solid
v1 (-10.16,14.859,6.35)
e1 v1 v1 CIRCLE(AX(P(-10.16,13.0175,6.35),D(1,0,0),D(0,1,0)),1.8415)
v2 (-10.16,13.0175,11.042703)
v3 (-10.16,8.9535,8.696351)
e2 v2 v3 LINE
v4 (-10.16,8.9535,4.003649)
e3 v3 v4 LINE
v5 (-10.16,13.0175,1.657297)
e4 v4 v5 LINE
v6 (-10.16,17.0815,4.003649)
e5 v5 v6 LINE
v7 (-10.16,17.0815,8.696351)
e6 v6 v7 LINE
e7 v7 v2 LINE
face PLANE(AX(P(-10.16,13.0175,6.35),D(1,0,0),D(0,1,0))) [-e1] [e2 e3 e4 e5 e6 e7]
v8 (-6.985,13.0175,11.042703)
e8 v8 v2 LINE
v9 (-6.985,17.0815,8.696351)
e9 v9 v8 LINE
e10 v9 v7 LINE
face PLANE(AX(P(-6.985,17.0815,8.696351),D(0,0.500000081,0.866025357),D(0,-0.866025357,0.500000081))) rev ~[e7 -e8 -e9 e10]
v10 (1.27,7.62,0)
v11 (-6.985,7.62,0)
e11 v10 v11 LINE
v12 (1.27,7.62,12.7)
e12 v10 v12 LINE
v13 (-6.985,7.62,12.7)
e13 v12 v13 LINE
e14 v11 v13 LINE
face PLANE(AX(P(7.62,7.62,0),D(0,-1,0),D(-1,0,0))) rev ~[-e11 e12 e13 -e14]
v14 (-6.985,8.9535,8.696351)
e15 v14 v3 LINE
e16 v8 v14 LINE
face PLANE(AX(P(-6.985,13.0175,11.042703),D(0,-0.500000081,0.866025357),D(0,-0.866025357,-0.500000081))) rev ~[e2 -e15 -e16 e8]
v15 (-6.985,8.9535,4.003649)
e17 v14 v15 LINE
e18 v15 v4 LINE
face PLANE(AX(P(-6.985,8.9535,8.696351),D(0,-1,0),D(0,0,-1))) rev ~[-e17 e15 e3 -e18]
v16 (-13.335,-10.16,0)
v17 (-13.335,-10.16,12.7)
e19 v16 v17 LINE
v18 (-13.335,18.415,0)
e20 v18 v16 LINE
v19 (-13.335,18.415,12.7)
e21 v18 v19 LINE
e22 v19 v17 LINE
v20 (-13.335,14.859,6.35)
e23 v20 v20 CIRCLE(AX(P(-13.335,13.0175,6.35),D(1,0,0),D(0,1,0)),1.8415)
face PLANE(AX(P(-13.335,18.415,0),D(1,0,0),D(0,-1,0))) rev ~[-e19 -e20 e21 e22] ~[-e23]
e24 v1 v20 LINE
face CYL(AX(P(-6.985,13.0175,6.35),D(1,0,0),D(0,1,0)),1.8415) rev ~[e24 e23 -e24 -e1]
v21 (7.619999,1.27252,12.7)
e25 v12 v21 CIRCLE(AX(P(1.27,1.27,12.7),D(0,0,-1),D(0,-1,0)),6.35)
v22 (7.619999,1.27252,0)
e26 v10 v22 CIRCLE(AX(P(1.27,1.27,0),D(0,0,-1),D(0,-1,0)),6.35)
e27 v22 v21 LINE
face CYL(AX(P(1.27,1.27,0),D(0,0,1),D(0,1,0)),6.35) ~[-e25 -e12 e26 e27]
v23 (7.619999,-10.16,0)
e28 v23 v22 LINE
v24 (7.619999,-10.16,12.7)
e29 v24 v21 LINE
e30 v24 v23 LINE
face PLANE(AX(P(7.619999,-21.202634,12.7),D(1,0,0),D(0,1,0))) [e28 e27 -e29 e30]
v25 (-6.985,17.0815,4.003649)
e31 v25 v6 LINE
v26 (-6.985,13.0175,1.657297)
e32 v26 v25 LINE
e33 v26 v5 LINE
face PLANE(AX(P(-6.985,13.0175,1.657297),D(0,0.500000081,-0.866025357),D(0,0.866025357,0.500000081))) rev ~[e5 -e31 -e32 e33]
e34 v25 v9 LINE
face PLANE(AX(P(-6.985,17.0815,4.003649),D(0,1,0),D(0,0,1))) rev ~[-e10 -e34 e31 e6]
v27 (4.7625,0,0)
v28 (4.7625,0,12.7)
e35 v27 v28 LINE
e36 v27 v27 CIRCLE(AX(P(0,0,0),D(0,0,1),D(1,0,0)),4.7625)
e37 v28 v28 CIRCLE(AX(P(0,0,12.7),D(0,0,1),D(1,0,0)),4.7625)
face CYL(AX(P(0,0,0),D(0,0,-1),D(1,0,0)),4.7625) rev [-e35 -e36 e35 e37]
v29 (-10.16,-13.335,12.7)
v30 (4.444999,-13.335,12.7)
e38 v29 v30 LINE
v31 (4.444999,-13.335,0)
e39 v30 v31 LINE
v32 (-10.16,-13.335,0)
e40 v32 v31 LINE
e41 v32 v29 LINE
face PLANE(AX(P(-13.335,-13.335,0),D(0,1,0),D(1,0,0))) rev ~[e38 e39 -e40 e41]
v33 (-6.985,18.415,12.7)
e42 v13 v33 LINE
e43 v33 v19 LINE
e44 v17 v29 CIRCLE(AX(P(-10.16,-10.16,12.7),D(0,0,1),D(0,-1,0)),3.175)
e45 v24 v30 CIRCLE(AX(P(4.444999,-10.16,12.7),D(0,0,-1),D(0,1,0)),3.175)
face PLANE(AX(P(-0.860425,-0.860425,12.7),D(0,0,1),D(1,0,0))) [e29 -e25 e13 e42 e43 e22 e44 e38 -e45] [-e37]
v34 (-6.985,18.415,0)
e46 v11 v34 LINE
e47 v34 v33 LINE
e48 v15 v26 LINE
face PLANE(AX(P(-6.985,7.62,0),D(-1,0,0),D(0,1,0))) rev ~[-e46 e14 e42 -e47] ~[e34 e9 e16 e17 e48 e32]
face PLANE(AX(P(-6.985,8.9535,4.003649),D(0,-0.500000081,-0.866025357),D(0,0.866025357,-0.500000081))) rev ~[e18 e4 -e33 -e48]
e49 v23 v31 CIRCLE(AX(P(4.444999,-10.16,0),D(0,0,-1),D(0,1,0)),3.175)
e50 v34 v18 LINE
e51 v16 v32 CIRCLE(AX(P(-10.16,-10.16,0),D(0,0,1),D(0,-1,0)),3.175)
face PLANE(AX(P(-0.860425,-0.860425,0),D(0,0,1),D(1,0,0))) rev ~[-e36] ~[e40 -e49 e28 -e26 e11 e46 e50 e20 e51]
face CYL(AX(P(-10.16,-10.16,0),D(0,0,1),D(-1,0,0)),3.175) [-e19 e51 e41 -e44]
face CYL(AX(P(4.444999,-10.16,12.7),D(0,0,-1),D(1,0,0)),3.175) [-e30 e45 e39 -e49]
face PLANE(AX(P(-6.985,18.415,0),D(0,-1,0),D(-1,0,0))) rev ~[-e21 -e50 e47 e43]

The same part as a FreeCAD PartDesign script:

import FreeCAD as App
import Part
import Sketcher

V = App.Vector
Q = App.Units.Quantity


def edges_at(feature, points):
    """Names of the edges that pass closest to the given points."""
    edges = feature.Shape.Edges
    near = lambda p: min(range(len(edges)), key=lambda i: edges[i].distToShape(Part.Vertex(*p))[0])
    return sorted({f"Edge{near(p) + 1}" for p in points})


def add_polygon(sketch, points):
    """Adds a closed chain of lines whose ends are joined by coincident constraints."""
    first, n = sketch.GeometryCount, len(points)
    for a, b in zip(points, points[1:] + points[:1]):
        sketch.addGeometry(Part.LineSegment(App.Vector(*a, 0), App.Vector(*b, 0)), False)
    for i in range(n):
        sketch.addConstraint(Sketcher.Constraint("Coincident", first + i, 2, first + (i + 1) % n, 1))

doc = App.newDocument("Part")
body = doc.addObject("PartDesign::Body", "Body")

sketch1 = doc.addObject("Sketcher::SketchObject", "Sketch")
body.addObject(sketch1)
sketch1.AttachmentSupport = (doc.XY_Plane, [""])
sketch1.MapMode = "FlatFace"
add_polygon(sketch1, [(-13.3, 18.4), (-13.3, -13.3), (18.4, -13.3), (18.4, -7), (7.6, -7), (7.6, 7.6), (-7, 7.6), (-7, 18.4)])
sketch1.addGeometry(Part.Circle(V(0, 0, 0), V(0, 0, 1), 4.8), False)
sketch1.addConstraint([
    Sketcher.Constraint("Vertical", 0),
    Sketcher.Constraint("Horizontal", 1),
    Sketcher.Constraint("Vertical", 2),
    Sketcher.Constraint("Horizontal", 3),
    Sketcher.Constraint("Vertical", 4),
    Sketcher.Constraint("Horizontal", 5),
    Sketcher.Constraint("Vertical", 6),
    Sketcher.Constraint("Horizontal", 7),
    Sketcher.Constraint("Coincident", 8, 3, -1, 1),
    Sketcher.Constraint("Equal", 1, 0),
    Sketcher.Constraint("Equal", 7, 2),
    Sketcher.Constraint("Equal", 5, 4),
    Sketcher.Constraint("Diameter", 8, Q("0.375 in")),
    Sketcher.Constraint("DistanceX", 5, 2, 2, 2, Q("1 in")),
    Sketcher.Constraint("DistanceX", 1, 1, 1, 2, Q("1.25 in")),
    Sketcher.Constraint("DistanceX", -1, 1, 3, 2, Q("0.3 in")),
    Sketcher.Constraint("DistanceY", -1, 1, 4, 2, Q("0.3 in")),
    Sketcher.Constraint("DistanceX", 3, 2, 3, 1, Q("0.425 in")),
])
pad1 = doc.addObject("PartDesign::Pad", "Pad")
body.addObject(pad1)
pad1.Profile = sketch1
pad1.Length = Q("0.5 in")
doc.recompute()

fillet = doc.addObject("PartDesign::Fillet", "Fillet")
body.addObject(fillet)
fillet.Base = (pad1, edges_at(pad1, [(7.62, 7.62, 6.35)]))
fillet.Radius = Q("0.25 in")
doc.recompute()

fillet2 = doc.addObject("PartDesign::Fillet", "Fillet001")
body.addObject(fillet2)
fillet2.Base = (fillet, edges_at(fillet, [(-13.335, -13.335, 6.35)]))
fillet2.Radius = Q("0.125 in")

sketch2 = doc.addObject("Sketcher::SketchObject", "Sketch001")
body.addObject(sketch2)
sketch2.AttachmentSupport = (doc.XZ_Plane, [""])
sketch2.MapMode = "FlatFace"
sketch2.AttachmentOffset = App.Placement(V(0, 0, 0.275 * 25.4), App.Rotation())
sketch2.addGeometry(Part.Circle(V(13, 6.3, 0), V(0, 0, 1), 1.8), False)
sketch2.addConstraint([
    Sketcher.Constraint("Diameter", 0, Q("0.145 in")),
    Sketcher.Constraint("DistanceY", -1, 1, 0, 3, Q("0.25 in")),
    Sketcher.Constraint("DistanceX", -1, 1, 0, 3, Q("0.5125 in")),
])
pocket1 = doc.addObject("PartDesign::Pocket", "Pocket")
body.addObject(pocket1)
pocket1.Profile = sketch2
pocket1.Length = Q("1 in")
pocket1.Reversed = True

sketch3 = doc.addObject("Sketcher::SketchObject", "Sketch002")
body.addObject(sketch3)
sketch3.AttachmentSupport = (doc.XZ_Plane, [""])
sketch3.MapMode = "FlatFace"
sketch3.AttachmentOffset = App.Placement(V(0, 0, 0.275 * 25.4), App.Rotation())
add_polygon(sketch3, [(17.1, 4), (13, 1.7), (9, 4), (9, 8.7), (13, 11), (17.1, 8.7)])
sketch3.addConstraint([
    Sketcher.Constraint("Vertical", 2),
    Sketcher.Constraint("Vertical", 5),
    Sketcher.Constraint("Parallel", 0, 3),
    Sketcher.Constraint("Parallel", 1, 4),
    Sketcher.Constraint("Horizontal", 2, 2, 4, 2),
    Sketcher.Constraint("Horizontal", 1, 2, 5, 2),
    Sketcher.Constraint("Vertical", 0, 2, 3, 2),
    Sketcher.Constraint("Angle", 0, Q("-149.999995 deg")),
    Sketcher.Constraint("DistanceX", 1, 2, 0, 2, Q("0.16 in")),
    Sketcher.Constraint("DistanceY", 2, 1, 2, 2, Q("4.692702 mm")),
    Sketcher.Constraint("DistanceX", -1, 1, 0, 2, Q("0.5125 in")),
    Sketcher.Constraint("DistanceY", -1, 1, 1, 2, Q("4.003649 mm")),
])
pocket2 = doc.addObject("PartDesign::Pocket", "Pocket001")
body.addObject(pocket2)
pocket2.Profile = sketch3
pocket2.Length = Q("0.125 in")
pocket2.Reversed = True

sketch4 = doc.addObject("Sketcher::SketchObject", "Sketch003")
body.addObject(sketch4)
sketch4.AttachmentSupport = (doc.YZ_Plane, [""])
sketch4.MapMode = "FlatFace"
sketch4.AttachmentOffset = App.Placement(V(0, 0, -0.275 * 25.4), App.Rotation())
sketch4.addGeometry(Part.Circle(V(13, 6.3, 0), V(0, 0, 1), 1.8), False)
sketch4.addConstraint([
    Sketcher.Constraint("Diameter", 0, Q("0.145 in")),
    Sketcher.Constraint("DistanceY", -1, 1, 0, 3, Q("0.25 in")),
    Sketcher.Constraint("DistanceX", -1, 1, 0, 3, Q("0.5125 in")),
])
pocket3 = doc.addObject("PartDesign::Pocket", "Pocket002")
body.addObject(pocket3)
pocket3.Profile = sketch4
pocket3.Length = Q("1 in")

sketch5 = doc.addObject("Sketcher::SketchObject", "Sketch004")
body.addObject(sketch5)
sketch5.AttachmentSupport = (doc.YZ_Plane, [""])
sketch5.MapMode = "FlatFace"
sketch5.AttachmentOffset = App.Placement(V(0, 0, -0.275 * 25.4), App.Rotation())
add_polygon(sketch5, [(9, 8.7), (9, 4), (13, 1.7), (17.1, 4), (17.1, 8.7), (13, 11)])
sketch5.addConstraint([
    Sketcher.Constraint("Vertical", 0),
    Sketcher.Constraint("Vertical", 3),
    Sketcher.Constraint("Parallel", 1, 4),
    Sketcher.Constraint("Parallel", 2, 5),
    Sketcher.Constraint("Horizontal", 0, 2, 2, 2),
    Sketcher.Constraint("Horizontal", 3, 2, 5, 2),
    Sketcher.Constraint("Vertical", 1, 2, 4, 2),
    Sketcher.Constraint("Angle", 1, Q("-30.000005 deg")),
    Sketcher.Constraint("DistanceX", 0, 2, 1, 2, Q("0.16 in")),
    Sketcher.Constraint("DistanceY", 0, 2, 0, 1, Q("4.692702 mm")),
    Sketcher.Constraint("DistanceX", -1, 1, 0, 2, Q("0.3525 in")),
    Sketcher.Constraint("DistanceY", -1, 1, 0, 2, Q("4.003649 mm")),
])
pocket4 = doc.addObject("PartDesign::Pocket", "Pocket003")
body.addObject(pocket4)
pocket4.Profile = sketch5
pocket4.Length = Q("0.125 in")

sketch6 = doc.addObject("Sketcher::SketchObject", "Sketch005")
body.addObject(sketch6)
sketch6.AttachmentSupport = (doc.XY_Plane, [""])
sketch6.MapMode = "FlatFace"
sketch6.AttachmentOffset = App.Placement(V(0, 0, 0.5 * 25.4), App.Rotation())
add_polygon(sketch6, [(8, 9), (8, -21), (28, -21), (28, 9)])
sketch6.addConstraint([
    Sketcher.Constraint("Vertical", 0),
    Sketcher.Constraint("Horizontal", 1),
    Sketcher.Constraint("Vertical", 2),
    Sketcher.Constraint("Horizontal", 3),
    Sketcher.Constraint("DistanceX", -1, 1, 0, 2, Q("0.3 in")),
    Sketcher.Constraint("DistanceY", 0, 2, 0, 1, Q("29.730969 mm")),
    Sketcher.Constraint("DistanceX", 1, 1, 1, 2, Q("20.617577 mm")),
    Sketcher.Constraint("DistanceY", 0, 2, -1, 1, Q("21.202634 mm")),
])
pocket5 = doc.addObject("PartDesign::Pocket", "Pocket004")
body.addObject(pocket5)
pocket5.Profile = sketch6
pocket5.Length = Q("1 in")
doc.recompute()

fillet3 = doc.addObject("PartDesign::Fillet", "Fillet002")
body.addObject(fillet3)
fillet3.Base = (pocket5, edges_at(pocket5, [(7.62, -13.335, 6.35)]))
fillet3.Radius = Q("0.125 in")

doc.recompute()
